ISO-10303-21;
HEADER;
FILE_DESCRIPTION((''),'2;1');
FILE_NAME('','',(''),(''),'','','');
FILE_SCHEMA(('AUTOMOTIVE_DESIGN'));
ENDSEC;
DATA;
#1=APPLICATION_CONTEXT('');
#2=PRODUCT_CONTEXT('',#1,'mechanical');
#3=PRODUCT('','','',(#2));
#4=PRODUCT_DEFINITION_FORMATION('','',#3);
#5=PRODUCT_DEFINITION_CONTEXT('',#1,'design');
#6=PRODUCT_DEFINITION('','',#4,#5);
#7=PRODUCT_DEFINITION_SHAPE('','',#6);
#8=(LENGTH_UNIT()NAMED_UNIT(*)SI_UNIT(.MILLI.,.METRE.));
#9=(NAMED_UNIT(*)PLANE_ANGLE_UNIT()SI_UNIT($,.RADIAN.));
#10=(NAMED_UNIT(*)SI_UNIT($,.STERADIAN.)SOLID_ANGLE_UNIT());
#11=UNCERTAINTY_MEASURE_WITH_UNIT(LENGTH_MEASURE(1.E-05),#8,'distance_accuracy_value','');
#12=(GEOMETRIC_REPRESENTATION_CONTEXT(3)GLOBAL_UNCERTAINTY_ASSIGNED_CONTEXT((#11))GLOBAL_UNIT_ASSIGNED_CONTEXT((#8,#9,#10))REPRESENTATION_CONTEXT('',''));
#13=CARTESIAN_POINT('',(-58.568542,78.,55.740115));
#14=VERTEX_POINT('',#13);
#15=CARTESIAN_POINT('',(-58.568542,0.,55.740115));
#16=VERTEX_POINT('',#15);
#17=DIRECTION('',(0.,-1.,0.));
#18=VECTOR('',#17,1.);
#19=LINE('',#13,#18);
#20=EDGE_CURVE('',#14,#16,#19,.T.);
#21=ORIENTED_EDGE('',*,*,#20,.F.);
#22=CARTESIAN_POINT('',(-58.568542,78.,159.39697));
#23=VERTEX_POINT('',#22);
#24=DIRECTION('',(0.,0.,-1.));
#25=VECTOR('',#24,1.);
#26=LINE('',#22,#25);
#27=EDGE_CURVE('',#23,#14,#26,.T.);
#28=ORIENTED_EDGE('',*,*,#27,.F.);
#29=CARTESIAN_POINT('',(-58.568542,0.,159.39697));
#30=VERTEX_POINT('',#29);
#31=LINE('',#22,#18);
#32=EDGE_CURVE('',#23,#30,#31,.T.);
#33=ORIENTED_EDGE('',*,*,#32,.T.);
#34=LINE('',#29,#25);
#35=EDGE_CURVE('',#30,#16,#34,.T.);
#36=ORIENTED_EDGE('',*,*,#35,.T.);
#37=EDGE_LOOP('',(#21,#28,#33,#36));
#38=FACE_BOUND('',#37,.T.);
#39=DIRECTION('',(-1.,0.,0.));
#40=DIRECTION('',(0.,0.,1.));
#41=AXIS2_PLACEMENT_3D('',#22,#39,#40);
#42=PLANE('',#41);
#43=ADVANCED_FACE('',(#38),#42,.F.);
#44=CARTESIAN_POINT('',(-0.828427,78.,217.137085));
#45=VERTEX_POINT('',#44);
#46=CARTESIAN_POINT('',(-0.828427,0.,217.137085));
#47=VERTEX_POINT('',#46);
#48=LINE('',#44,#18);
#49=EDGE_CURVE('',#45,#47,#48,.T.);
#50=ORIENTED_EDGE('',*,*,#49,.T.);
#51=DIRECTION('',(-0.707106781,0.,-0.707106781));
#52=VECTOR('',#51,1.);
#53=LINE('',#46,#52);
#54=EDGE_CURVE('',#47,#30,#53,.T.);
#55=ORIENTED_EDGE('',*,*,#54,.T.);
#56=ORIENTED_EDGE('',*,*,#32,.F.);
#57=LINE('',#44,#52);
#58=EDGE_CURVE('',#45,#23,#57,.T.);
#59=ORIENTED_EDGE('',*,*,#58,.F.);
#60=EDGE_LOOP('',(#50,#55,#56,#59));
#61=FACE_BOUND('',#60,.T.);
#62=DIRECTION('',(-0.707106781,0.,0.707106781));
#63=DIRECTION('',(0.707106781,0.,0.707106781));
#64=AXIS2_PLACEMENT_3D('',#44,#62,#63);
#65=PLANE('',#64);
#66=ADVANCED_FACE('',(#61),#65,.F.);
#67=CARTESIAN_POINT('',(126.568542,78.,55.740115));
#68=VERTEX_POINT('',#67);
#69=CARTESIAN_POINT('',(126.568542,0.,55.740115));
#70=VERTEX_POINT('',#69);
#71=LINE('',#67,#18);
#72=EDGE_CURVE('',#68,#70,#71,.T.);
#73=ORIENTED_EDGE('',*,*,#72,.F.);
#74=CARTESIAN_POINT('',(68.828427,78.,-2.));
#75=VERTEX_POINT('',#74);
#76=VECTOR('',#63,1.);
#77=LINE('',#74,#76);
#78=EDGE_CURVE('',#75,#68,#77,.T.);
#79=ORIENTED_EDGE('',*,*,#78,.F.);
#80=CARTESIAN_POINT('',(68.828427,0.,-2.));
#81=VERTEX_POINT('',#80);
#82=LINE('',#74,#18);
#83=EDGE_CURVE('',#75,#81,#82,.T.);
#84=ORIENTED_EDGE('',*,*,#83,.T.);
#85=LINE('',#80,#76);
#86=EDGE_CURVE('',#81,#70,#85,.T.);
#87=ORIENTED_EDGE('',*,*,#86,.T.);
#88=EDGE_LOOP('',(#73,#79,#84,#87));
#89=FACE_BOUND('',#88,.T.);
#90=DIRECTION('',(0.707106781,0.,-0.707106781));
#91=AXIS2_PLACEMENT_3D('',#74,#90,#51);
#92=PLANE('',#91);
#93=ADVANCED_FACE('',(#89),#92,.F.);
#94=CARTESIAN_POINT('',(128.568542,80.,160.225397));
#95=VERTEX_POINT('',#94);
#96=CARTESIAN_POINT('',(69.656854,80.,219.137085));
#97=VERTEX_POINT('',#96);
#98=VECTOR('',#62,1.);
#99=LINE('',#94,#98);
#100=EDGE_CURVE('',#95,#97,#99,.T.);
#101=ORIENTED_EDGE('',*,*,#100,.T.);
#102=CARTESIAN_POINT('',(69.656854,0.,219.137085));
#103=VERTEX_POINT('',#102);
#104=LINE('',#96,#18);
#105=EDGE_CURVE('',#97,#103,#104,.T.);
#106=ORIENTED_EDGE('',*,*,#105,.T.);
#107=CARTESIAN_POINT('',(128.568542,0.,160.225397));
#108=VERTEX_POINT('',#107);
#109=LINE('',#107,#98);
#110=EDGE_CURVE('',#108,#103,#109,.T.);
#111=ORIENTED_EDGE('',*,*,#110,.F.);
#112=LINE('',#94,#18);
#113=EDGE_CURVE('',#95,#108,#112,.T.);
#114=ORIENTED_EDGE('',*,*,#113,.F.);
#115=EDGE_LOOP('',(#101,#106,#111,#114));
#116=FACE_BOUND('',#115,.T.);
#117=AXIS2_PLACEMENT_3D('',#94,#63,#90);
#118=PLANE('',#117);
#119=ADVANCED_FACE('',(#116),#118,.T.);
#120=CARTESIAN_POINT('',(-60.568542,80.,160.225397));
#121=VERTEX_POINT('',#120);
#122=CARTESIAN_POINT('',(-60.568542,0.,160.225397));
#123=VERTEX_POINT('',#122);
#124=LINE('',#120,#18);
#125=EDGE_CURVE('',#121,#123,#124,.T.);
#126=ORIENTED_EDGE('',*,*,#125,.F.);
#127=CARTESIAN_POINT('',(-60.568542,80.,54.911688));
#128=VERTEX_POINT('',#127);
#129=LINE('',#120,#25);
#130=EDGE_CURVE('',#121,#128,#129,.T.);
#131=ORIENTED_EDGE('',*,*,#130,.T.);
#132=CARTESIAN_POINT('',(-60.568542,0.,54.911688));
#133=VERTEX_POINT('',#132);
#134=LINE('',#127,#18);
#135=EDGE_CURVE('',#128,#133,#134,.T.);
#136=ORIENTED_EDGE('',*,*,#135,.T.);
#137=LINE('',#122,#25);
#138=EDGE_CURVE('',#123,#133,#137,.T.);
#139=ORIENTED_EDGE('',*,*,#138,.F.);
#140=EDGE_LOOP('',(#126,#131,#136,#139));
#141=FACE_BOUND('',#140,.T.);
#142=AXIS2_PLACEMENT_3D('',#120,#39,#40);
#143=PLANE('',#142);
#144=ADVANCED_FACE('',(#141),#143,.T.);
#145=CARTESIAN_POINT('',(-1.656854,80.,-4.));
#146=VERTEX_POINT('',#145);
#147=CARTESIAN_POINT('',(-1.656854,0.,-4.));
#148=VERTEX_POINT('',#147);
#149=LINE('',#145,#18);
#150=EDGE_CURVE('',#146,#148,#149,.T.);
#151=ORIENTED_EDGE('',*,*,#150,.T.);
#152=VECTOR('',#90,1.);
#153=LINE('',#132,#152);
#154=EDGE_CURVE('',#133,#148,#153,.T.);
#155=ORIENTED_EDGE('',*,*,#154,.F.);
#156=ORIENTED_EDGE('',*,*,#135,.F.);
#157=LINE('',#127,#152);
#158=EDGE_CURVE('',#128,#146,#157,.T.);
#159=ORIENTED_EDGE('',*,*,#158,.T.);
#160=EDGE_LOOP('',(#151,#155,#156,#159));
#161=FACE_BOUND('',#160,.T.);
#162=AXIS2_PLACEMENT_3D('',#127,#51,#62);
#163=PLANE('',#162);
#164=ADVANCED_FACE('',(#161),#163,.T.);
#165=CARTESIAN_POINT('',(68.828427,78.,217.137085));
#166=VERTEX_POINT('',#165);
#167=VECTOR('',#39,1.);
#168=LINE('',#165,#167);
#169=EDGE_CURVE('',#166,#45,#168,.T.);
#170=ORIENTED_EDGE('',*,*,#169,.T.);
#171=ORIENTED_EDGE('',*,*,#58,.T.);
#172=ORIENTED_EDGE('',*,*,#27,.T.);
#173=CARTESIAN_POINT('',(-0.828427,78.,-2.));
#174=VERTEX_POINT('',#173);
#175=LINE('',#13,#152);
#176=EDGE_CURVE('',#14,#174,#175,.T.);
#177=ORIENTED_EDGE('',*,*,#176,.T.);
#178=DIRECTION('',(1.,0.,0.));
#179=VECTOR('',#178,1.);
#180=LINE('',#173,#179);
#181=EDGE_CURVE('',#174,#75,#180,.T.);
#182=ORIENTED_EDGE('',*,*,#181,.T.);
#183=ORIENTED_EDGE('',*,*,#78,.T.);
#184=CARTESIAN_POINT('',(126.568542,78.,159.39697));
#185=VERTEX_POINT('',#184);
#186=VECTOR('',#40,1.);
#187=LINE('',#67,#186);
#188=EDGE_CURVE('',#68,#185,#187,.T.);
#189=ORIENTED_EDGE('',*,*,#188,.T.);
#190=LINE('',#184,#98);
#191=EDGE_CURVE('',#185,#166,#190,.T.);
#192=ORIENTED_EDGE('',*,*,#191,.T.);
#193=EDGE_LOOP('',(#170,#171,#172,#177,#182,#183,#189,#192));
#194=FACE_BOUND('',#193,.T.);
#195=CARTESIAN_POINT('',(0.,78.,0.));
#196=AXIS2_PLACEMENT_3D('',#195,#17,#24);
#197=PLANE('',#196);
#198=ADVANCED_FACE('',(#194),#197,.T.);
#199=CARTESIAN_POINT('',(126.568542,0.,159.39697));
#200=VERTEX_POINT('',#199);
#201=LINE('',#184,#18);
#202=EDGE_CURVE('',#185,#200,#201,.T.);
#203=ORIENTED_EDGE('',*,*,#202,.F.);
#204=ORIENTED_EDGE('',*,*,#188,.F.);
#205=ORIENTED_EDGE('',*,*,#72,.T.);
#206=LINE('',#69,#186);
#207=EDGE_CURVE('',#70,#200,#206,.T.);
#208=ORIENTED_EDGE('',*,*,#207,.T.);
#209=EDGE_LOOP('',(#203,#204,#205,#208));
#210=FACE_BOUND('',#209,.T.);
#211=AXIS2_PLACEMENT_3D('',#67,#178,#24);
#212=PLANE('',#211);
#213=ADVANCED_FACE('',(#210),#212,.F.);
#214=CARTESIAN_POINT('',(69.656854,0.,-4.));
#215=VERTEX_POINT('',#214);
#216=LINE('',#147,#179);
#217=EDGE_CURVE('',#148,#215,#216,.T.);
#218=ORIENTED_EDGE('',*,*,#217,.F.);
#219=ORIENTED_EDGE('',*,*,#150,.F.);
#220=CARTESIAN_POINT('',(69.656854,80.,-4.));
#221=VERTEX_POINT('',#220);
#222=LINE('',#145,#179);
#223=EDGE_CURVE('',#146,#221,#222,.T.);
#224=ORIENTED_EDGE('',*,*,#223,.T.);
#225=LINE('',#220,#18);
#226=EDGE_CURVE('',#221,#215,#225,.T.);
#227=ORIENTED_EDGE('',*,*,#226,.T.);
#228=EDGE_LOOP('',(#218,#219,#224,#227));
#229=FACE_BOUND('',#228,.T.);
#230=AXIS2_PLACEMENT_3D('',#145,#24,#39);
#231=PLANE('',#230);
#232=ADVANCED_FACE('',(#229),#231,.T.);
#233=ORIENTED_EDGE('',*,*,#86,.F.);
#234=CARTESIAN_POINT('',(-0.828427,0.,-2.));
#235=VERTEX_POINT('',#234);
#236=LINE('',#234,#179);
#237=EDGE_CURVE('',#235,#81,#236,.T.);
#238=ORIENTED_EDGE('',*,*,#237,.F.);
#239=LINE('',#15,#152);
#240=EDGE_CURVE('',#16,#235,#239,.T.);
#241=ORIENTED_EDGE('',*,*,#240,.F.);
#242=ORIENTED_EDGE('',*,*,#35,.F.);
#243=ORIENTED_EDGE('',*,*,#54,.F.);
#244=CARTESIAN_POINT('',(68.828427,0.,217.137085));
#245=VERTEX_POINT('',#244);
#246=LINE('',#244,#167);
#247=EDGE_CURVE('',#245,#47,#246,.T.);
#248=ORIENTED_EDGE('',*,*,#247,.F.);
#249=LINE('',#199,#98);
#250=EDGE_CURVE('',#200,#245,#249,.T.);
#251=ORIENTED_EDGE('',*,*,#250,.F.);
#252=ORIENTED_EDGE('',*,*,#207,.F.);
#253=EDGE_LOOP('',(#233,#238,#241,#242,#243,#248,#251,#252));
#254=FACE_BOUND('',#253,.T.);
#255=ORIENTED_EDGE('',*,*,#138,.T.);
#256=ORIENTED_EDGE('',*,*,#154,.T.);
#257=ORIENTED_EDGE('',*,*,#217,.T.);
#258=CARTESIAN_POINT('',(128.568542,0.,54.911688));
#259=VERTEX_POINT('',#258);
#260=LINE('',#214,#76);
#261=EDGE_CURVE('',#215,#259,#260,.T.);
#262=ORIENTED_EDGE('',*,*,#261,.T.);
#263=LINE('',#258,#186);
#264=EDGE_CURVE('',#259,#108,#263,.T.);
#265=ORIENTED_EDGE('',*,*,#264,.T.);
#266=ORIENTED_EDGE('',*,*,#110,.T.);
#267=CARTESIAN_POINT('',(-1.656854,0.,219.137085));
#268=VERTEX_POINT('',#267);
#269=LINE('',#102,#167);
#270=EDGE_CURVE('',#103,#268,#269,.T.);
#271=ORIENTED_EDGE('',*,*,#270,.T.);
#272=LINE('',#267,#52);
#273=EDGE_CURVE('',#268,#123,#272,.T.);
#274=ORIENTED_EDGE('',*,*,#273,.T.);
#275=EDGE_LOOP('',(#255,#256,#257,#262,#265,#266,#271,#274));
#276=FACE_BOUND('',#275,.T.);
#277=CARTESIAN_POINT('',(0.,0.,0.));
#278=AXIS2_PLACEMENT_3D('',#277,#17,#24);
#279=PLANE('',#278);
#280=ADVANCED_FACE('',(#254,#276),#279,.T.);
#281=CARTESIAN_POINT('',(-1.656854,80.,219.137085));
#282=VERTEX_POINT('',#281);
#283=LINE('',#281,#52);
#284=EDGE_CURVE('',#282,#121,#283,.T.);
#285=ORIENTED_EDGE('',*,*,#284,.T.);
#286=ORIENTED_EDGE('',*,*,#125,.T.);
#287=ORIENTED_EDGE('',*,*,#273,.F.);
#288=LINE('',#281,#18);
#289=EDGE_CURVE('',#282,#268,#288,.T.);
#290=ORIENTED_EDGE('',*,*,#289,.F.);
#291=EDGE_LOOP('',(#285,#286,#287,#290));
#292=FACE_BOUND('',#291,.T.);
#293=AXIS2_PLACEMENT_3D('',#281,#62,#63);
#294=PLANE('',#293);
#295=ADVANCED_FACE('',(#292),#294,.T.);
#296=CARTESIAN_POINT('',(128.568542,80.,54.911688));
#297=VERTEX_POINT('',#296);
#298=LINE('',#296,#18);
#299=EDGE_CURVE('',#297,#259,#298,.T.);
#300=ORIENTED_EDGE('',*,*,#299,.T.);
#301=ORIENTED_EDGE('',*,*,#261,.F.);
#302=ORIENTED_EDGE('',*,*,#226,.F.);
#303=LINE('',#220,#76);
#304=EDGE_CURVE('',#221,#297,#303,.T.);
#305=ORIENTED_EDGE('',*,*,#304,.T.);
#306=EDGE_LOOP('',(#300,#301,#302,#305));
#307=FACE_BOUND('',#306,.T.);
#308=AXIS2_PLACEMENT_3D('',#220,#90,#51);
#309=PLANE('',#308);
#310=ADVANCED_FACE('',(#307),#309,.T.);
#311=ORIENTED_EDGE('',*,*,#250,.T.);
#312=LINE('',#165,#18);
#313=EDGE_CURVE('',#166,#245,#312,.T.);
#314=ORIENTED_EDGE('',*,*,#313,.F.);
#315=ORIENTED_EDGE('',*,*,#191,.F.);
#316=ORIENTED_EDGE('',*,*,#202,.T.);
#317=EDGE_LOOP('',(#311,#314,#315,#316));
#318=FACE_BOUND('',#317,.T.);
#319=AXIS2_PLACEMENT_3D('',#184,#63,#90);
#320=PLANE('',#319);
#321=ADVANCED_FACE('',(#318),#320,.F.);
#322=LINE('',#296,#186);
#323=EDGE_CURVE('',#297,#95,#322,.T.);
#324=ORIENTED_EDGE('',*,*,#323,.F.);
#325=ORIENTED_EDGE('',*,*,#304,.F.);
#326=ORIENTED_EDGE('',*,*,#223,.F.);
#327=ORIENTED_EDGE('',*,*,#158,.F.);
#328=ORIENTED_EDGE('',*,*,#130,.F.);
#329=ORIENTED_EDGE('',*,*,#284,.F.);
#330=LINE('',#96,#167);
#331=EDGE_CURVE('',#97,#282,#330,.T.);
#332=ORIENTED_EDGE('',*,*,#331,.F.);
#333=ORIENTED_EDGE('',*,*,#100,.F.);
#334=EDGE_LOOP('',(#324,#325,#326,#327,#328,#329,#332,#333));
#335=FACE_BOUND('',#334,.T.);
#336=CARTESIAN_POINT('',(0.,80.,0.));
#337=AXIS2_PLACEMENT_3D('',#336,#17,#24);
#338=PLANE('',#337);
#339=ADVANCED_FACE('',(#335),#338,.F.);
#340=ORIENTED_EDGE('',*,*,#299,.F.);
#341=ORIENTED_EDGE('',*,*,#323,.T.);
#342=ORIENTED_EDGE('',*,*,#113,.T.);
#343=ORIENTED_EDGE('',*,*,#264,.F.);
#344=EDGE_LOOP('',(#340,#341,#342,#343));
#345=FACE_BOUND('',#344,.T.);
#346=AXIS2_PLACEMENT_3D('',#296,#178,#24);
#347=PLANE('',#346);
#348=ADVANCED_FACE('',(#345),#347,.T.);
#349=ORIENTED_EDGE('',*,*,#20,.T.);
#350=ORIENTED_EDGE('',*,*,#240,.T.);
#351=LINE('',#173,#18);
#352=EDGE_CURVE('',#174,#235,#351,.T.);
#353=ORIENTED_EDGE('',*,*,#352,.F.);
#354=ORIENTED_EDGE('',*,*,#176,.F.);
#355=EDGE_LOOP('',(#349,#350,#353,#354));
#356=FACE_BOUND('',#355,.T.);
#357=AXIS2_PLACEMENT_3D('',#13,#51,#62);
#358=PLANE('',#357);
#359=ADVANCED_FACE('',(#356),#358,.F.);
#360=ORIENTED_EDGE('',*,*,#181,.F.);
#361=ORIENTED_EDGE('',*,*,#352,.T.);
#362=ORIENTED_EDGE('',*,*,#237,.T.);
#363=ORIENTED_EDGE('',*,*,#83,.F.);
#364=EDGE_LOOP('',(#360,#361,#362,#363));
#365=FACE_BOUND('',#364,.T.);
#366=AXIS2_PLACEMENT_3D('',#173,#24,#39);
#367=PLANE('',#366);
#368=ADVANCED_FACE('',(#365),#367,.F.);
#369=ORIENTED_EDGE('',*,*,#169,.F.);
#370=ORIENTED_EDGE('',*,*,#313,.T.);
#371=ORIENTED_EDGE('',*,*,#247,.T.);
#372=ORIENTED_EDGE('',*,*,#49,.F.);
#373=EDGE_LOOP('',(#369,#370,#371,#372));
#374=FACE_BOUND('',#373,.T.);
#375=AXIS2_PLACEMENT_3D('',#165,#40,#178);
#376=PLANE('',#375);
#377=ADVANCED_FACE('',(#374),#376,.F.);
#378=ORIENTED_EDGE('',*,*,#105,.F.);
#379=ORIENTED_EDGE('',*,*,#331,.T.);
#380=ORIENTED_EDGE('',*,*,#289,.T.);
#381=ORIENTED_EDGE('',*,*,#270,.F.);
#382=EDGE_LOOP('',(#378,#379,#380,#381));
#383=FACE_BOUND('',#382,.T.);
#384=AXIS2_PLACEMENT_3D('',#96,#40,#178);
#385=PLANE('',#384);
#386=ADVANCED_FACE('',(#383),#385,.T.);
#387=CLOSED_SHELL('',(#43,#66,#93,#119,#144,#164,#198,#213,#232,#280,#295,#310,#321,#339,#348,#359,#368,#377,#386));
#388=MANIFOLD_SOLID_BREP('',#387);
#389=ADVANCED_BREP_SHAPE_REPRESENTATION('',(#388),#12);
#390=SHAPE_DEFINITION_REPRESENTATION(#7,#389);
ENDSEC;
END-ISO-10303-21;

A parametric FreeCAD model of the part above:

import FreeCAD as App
import Part
import Sketcher
Q = App.Units.Quantity


def add_polygon(sketch, points):
    """Adds a closed chain of lines whose ends are joined by coincident constraints."""
    first, n = sketch.GeometryCount, len(points)
    for a, b in zip(points, points[1:] + points[:1]):
        sketch.addGeometry(Part.LineSegment(App.Vector(*a, 0), App.Vector(*b, 0)), False)
    for i in range(n):
        sketch.addConstraint(Sketcher.Constraint("Coincident", first + i, 2, first + (i + 1) % n, 1))

doc = App.newDocument("Part")
body = doc.addObject("PartDesign::Body", "Body")

# Sketch on XZ plane
sketch1 = body.newObject("Sketcher::SketchObject", "Sketch")
sketch1.AttachmentSupport = (doc.getObject("XZ_Plane"), [""])
sketch1.MapMode = "FlatFace"
add_polygon(sketch1, [(70, -4), (-2, -4), (-61, 55), (-61, 160), (-2, 219), (70, 219), (129, 160), (129, 55)])  # lines 0-7
sketch1.addConstraint([
    Sketcher.Constraint("Horizontal", 0),
    Sketcher.Constraint("Vertical", 2),
    Sketcher.Constraint("Horizontal", 4),
    Sketcher.Constraint("Vertical", 6),
    Sketcher.Constraint("Perpendicular", 1, 3),
    Sketcher.Constraint("Perpendicular", 3, 5),
    Sketcher.Constraint("Perpendicular", 5, 7),
    Sketcher.Constraint("Horizontal", 2, 2, 5, 2),
    Sketcher.Constraint("Horizontal", 1, 2, 6, 2),
    Sketcher.Constraint("Vertical", 0, 2, 3, 2),
    Sketcher.Constraint("Vertical", 4, 2, 7, 2),
    Sketcher.Constraint("DistanceY", 0, 2, -1, 1, Q("4 mm")),
    Sketcher.Constraint("DistanceX", 0, 2, 0, 1, Q("71.313708 mm")),
    Sketcher.Constraint("DistanceY", 2, 1, 2, 2, Q("105.313708 mm")),
    Sketcher.Constraint("Distance", 1, Q("83.313708 mm")),
    Sketcher.Constraint("DistanceX", 0, 2, -1, 1, Q("1.656854 mm")),
])
pad1 = body.newObject("PartDesign::Pad", "Pad")
pad1.Profile = sketch1
pad1.Length = 80
pad1.Reversed = True

# Sketch on XZ plane
sketch2 = body.newObject("Sketcher::SketchObject", "Sketch001")
sketch2.AttachmentSupport = (doc.getObject("XZ_Plane"), [""])
sketch2.MapMode = "FlatFace"
add_polygon(sketch2, [(-1, -2), (-59, 56), (-59, 159), (-1, 217), (69, 217), (127, 159), (127, 56), (69, -2)])  # lines 0-7
sketch2.addConstraint([
    Sketcher.Constraint("Vertical", 1),
    Sketcher.Constraint("Horizontal", 3),
    Sketcher.Constraint("Vertical", 5),
    Sketcher.Constraint("Horizontal", 7),
    Sketcher.Constraint("Perpendicular", 0, 2),
    Sketcher.Constraint("Perpendicular", 2, 4),
    Sketcher.Constraint("Perpendicular", 4, 6),
    Sketcher.Constraint("Horizontal", 1, 2, 4, 2),
    Sketcher.Constraint("Horizontal", 0, 2, 5, 2),
    Sketcher.Constraint("Vertical", 3, 2, 6, 2),
    Sketcher.Constraint("Vertical", 2, 2, 7, 2),
    Sketcher.Constraint("DistanceY", 6, 2, -1, 1, Q("2 mm")),
    Sketcher.Constraint("DistanceX", 3, 1, 3, 2, Q("69.656854 mm")),
    Sketcher.Constraint("DistanceY", 1, 1, 1, 2, Q("103.656854 mm")),
    Sketcher.Constraint("DistanceY", -1, 1, 1, 2, Q("159.39697 mm")),
    Sketcher.Constraint("DistanceX", 0, 2, -1, 1, Q("58.568542 mm")),
])
pocket1 = body.newObject("PartDesign::Pocket", "Pocket")
pocket1.Profile = sketch2
pocket1.Length = 78

doc.recompute()
